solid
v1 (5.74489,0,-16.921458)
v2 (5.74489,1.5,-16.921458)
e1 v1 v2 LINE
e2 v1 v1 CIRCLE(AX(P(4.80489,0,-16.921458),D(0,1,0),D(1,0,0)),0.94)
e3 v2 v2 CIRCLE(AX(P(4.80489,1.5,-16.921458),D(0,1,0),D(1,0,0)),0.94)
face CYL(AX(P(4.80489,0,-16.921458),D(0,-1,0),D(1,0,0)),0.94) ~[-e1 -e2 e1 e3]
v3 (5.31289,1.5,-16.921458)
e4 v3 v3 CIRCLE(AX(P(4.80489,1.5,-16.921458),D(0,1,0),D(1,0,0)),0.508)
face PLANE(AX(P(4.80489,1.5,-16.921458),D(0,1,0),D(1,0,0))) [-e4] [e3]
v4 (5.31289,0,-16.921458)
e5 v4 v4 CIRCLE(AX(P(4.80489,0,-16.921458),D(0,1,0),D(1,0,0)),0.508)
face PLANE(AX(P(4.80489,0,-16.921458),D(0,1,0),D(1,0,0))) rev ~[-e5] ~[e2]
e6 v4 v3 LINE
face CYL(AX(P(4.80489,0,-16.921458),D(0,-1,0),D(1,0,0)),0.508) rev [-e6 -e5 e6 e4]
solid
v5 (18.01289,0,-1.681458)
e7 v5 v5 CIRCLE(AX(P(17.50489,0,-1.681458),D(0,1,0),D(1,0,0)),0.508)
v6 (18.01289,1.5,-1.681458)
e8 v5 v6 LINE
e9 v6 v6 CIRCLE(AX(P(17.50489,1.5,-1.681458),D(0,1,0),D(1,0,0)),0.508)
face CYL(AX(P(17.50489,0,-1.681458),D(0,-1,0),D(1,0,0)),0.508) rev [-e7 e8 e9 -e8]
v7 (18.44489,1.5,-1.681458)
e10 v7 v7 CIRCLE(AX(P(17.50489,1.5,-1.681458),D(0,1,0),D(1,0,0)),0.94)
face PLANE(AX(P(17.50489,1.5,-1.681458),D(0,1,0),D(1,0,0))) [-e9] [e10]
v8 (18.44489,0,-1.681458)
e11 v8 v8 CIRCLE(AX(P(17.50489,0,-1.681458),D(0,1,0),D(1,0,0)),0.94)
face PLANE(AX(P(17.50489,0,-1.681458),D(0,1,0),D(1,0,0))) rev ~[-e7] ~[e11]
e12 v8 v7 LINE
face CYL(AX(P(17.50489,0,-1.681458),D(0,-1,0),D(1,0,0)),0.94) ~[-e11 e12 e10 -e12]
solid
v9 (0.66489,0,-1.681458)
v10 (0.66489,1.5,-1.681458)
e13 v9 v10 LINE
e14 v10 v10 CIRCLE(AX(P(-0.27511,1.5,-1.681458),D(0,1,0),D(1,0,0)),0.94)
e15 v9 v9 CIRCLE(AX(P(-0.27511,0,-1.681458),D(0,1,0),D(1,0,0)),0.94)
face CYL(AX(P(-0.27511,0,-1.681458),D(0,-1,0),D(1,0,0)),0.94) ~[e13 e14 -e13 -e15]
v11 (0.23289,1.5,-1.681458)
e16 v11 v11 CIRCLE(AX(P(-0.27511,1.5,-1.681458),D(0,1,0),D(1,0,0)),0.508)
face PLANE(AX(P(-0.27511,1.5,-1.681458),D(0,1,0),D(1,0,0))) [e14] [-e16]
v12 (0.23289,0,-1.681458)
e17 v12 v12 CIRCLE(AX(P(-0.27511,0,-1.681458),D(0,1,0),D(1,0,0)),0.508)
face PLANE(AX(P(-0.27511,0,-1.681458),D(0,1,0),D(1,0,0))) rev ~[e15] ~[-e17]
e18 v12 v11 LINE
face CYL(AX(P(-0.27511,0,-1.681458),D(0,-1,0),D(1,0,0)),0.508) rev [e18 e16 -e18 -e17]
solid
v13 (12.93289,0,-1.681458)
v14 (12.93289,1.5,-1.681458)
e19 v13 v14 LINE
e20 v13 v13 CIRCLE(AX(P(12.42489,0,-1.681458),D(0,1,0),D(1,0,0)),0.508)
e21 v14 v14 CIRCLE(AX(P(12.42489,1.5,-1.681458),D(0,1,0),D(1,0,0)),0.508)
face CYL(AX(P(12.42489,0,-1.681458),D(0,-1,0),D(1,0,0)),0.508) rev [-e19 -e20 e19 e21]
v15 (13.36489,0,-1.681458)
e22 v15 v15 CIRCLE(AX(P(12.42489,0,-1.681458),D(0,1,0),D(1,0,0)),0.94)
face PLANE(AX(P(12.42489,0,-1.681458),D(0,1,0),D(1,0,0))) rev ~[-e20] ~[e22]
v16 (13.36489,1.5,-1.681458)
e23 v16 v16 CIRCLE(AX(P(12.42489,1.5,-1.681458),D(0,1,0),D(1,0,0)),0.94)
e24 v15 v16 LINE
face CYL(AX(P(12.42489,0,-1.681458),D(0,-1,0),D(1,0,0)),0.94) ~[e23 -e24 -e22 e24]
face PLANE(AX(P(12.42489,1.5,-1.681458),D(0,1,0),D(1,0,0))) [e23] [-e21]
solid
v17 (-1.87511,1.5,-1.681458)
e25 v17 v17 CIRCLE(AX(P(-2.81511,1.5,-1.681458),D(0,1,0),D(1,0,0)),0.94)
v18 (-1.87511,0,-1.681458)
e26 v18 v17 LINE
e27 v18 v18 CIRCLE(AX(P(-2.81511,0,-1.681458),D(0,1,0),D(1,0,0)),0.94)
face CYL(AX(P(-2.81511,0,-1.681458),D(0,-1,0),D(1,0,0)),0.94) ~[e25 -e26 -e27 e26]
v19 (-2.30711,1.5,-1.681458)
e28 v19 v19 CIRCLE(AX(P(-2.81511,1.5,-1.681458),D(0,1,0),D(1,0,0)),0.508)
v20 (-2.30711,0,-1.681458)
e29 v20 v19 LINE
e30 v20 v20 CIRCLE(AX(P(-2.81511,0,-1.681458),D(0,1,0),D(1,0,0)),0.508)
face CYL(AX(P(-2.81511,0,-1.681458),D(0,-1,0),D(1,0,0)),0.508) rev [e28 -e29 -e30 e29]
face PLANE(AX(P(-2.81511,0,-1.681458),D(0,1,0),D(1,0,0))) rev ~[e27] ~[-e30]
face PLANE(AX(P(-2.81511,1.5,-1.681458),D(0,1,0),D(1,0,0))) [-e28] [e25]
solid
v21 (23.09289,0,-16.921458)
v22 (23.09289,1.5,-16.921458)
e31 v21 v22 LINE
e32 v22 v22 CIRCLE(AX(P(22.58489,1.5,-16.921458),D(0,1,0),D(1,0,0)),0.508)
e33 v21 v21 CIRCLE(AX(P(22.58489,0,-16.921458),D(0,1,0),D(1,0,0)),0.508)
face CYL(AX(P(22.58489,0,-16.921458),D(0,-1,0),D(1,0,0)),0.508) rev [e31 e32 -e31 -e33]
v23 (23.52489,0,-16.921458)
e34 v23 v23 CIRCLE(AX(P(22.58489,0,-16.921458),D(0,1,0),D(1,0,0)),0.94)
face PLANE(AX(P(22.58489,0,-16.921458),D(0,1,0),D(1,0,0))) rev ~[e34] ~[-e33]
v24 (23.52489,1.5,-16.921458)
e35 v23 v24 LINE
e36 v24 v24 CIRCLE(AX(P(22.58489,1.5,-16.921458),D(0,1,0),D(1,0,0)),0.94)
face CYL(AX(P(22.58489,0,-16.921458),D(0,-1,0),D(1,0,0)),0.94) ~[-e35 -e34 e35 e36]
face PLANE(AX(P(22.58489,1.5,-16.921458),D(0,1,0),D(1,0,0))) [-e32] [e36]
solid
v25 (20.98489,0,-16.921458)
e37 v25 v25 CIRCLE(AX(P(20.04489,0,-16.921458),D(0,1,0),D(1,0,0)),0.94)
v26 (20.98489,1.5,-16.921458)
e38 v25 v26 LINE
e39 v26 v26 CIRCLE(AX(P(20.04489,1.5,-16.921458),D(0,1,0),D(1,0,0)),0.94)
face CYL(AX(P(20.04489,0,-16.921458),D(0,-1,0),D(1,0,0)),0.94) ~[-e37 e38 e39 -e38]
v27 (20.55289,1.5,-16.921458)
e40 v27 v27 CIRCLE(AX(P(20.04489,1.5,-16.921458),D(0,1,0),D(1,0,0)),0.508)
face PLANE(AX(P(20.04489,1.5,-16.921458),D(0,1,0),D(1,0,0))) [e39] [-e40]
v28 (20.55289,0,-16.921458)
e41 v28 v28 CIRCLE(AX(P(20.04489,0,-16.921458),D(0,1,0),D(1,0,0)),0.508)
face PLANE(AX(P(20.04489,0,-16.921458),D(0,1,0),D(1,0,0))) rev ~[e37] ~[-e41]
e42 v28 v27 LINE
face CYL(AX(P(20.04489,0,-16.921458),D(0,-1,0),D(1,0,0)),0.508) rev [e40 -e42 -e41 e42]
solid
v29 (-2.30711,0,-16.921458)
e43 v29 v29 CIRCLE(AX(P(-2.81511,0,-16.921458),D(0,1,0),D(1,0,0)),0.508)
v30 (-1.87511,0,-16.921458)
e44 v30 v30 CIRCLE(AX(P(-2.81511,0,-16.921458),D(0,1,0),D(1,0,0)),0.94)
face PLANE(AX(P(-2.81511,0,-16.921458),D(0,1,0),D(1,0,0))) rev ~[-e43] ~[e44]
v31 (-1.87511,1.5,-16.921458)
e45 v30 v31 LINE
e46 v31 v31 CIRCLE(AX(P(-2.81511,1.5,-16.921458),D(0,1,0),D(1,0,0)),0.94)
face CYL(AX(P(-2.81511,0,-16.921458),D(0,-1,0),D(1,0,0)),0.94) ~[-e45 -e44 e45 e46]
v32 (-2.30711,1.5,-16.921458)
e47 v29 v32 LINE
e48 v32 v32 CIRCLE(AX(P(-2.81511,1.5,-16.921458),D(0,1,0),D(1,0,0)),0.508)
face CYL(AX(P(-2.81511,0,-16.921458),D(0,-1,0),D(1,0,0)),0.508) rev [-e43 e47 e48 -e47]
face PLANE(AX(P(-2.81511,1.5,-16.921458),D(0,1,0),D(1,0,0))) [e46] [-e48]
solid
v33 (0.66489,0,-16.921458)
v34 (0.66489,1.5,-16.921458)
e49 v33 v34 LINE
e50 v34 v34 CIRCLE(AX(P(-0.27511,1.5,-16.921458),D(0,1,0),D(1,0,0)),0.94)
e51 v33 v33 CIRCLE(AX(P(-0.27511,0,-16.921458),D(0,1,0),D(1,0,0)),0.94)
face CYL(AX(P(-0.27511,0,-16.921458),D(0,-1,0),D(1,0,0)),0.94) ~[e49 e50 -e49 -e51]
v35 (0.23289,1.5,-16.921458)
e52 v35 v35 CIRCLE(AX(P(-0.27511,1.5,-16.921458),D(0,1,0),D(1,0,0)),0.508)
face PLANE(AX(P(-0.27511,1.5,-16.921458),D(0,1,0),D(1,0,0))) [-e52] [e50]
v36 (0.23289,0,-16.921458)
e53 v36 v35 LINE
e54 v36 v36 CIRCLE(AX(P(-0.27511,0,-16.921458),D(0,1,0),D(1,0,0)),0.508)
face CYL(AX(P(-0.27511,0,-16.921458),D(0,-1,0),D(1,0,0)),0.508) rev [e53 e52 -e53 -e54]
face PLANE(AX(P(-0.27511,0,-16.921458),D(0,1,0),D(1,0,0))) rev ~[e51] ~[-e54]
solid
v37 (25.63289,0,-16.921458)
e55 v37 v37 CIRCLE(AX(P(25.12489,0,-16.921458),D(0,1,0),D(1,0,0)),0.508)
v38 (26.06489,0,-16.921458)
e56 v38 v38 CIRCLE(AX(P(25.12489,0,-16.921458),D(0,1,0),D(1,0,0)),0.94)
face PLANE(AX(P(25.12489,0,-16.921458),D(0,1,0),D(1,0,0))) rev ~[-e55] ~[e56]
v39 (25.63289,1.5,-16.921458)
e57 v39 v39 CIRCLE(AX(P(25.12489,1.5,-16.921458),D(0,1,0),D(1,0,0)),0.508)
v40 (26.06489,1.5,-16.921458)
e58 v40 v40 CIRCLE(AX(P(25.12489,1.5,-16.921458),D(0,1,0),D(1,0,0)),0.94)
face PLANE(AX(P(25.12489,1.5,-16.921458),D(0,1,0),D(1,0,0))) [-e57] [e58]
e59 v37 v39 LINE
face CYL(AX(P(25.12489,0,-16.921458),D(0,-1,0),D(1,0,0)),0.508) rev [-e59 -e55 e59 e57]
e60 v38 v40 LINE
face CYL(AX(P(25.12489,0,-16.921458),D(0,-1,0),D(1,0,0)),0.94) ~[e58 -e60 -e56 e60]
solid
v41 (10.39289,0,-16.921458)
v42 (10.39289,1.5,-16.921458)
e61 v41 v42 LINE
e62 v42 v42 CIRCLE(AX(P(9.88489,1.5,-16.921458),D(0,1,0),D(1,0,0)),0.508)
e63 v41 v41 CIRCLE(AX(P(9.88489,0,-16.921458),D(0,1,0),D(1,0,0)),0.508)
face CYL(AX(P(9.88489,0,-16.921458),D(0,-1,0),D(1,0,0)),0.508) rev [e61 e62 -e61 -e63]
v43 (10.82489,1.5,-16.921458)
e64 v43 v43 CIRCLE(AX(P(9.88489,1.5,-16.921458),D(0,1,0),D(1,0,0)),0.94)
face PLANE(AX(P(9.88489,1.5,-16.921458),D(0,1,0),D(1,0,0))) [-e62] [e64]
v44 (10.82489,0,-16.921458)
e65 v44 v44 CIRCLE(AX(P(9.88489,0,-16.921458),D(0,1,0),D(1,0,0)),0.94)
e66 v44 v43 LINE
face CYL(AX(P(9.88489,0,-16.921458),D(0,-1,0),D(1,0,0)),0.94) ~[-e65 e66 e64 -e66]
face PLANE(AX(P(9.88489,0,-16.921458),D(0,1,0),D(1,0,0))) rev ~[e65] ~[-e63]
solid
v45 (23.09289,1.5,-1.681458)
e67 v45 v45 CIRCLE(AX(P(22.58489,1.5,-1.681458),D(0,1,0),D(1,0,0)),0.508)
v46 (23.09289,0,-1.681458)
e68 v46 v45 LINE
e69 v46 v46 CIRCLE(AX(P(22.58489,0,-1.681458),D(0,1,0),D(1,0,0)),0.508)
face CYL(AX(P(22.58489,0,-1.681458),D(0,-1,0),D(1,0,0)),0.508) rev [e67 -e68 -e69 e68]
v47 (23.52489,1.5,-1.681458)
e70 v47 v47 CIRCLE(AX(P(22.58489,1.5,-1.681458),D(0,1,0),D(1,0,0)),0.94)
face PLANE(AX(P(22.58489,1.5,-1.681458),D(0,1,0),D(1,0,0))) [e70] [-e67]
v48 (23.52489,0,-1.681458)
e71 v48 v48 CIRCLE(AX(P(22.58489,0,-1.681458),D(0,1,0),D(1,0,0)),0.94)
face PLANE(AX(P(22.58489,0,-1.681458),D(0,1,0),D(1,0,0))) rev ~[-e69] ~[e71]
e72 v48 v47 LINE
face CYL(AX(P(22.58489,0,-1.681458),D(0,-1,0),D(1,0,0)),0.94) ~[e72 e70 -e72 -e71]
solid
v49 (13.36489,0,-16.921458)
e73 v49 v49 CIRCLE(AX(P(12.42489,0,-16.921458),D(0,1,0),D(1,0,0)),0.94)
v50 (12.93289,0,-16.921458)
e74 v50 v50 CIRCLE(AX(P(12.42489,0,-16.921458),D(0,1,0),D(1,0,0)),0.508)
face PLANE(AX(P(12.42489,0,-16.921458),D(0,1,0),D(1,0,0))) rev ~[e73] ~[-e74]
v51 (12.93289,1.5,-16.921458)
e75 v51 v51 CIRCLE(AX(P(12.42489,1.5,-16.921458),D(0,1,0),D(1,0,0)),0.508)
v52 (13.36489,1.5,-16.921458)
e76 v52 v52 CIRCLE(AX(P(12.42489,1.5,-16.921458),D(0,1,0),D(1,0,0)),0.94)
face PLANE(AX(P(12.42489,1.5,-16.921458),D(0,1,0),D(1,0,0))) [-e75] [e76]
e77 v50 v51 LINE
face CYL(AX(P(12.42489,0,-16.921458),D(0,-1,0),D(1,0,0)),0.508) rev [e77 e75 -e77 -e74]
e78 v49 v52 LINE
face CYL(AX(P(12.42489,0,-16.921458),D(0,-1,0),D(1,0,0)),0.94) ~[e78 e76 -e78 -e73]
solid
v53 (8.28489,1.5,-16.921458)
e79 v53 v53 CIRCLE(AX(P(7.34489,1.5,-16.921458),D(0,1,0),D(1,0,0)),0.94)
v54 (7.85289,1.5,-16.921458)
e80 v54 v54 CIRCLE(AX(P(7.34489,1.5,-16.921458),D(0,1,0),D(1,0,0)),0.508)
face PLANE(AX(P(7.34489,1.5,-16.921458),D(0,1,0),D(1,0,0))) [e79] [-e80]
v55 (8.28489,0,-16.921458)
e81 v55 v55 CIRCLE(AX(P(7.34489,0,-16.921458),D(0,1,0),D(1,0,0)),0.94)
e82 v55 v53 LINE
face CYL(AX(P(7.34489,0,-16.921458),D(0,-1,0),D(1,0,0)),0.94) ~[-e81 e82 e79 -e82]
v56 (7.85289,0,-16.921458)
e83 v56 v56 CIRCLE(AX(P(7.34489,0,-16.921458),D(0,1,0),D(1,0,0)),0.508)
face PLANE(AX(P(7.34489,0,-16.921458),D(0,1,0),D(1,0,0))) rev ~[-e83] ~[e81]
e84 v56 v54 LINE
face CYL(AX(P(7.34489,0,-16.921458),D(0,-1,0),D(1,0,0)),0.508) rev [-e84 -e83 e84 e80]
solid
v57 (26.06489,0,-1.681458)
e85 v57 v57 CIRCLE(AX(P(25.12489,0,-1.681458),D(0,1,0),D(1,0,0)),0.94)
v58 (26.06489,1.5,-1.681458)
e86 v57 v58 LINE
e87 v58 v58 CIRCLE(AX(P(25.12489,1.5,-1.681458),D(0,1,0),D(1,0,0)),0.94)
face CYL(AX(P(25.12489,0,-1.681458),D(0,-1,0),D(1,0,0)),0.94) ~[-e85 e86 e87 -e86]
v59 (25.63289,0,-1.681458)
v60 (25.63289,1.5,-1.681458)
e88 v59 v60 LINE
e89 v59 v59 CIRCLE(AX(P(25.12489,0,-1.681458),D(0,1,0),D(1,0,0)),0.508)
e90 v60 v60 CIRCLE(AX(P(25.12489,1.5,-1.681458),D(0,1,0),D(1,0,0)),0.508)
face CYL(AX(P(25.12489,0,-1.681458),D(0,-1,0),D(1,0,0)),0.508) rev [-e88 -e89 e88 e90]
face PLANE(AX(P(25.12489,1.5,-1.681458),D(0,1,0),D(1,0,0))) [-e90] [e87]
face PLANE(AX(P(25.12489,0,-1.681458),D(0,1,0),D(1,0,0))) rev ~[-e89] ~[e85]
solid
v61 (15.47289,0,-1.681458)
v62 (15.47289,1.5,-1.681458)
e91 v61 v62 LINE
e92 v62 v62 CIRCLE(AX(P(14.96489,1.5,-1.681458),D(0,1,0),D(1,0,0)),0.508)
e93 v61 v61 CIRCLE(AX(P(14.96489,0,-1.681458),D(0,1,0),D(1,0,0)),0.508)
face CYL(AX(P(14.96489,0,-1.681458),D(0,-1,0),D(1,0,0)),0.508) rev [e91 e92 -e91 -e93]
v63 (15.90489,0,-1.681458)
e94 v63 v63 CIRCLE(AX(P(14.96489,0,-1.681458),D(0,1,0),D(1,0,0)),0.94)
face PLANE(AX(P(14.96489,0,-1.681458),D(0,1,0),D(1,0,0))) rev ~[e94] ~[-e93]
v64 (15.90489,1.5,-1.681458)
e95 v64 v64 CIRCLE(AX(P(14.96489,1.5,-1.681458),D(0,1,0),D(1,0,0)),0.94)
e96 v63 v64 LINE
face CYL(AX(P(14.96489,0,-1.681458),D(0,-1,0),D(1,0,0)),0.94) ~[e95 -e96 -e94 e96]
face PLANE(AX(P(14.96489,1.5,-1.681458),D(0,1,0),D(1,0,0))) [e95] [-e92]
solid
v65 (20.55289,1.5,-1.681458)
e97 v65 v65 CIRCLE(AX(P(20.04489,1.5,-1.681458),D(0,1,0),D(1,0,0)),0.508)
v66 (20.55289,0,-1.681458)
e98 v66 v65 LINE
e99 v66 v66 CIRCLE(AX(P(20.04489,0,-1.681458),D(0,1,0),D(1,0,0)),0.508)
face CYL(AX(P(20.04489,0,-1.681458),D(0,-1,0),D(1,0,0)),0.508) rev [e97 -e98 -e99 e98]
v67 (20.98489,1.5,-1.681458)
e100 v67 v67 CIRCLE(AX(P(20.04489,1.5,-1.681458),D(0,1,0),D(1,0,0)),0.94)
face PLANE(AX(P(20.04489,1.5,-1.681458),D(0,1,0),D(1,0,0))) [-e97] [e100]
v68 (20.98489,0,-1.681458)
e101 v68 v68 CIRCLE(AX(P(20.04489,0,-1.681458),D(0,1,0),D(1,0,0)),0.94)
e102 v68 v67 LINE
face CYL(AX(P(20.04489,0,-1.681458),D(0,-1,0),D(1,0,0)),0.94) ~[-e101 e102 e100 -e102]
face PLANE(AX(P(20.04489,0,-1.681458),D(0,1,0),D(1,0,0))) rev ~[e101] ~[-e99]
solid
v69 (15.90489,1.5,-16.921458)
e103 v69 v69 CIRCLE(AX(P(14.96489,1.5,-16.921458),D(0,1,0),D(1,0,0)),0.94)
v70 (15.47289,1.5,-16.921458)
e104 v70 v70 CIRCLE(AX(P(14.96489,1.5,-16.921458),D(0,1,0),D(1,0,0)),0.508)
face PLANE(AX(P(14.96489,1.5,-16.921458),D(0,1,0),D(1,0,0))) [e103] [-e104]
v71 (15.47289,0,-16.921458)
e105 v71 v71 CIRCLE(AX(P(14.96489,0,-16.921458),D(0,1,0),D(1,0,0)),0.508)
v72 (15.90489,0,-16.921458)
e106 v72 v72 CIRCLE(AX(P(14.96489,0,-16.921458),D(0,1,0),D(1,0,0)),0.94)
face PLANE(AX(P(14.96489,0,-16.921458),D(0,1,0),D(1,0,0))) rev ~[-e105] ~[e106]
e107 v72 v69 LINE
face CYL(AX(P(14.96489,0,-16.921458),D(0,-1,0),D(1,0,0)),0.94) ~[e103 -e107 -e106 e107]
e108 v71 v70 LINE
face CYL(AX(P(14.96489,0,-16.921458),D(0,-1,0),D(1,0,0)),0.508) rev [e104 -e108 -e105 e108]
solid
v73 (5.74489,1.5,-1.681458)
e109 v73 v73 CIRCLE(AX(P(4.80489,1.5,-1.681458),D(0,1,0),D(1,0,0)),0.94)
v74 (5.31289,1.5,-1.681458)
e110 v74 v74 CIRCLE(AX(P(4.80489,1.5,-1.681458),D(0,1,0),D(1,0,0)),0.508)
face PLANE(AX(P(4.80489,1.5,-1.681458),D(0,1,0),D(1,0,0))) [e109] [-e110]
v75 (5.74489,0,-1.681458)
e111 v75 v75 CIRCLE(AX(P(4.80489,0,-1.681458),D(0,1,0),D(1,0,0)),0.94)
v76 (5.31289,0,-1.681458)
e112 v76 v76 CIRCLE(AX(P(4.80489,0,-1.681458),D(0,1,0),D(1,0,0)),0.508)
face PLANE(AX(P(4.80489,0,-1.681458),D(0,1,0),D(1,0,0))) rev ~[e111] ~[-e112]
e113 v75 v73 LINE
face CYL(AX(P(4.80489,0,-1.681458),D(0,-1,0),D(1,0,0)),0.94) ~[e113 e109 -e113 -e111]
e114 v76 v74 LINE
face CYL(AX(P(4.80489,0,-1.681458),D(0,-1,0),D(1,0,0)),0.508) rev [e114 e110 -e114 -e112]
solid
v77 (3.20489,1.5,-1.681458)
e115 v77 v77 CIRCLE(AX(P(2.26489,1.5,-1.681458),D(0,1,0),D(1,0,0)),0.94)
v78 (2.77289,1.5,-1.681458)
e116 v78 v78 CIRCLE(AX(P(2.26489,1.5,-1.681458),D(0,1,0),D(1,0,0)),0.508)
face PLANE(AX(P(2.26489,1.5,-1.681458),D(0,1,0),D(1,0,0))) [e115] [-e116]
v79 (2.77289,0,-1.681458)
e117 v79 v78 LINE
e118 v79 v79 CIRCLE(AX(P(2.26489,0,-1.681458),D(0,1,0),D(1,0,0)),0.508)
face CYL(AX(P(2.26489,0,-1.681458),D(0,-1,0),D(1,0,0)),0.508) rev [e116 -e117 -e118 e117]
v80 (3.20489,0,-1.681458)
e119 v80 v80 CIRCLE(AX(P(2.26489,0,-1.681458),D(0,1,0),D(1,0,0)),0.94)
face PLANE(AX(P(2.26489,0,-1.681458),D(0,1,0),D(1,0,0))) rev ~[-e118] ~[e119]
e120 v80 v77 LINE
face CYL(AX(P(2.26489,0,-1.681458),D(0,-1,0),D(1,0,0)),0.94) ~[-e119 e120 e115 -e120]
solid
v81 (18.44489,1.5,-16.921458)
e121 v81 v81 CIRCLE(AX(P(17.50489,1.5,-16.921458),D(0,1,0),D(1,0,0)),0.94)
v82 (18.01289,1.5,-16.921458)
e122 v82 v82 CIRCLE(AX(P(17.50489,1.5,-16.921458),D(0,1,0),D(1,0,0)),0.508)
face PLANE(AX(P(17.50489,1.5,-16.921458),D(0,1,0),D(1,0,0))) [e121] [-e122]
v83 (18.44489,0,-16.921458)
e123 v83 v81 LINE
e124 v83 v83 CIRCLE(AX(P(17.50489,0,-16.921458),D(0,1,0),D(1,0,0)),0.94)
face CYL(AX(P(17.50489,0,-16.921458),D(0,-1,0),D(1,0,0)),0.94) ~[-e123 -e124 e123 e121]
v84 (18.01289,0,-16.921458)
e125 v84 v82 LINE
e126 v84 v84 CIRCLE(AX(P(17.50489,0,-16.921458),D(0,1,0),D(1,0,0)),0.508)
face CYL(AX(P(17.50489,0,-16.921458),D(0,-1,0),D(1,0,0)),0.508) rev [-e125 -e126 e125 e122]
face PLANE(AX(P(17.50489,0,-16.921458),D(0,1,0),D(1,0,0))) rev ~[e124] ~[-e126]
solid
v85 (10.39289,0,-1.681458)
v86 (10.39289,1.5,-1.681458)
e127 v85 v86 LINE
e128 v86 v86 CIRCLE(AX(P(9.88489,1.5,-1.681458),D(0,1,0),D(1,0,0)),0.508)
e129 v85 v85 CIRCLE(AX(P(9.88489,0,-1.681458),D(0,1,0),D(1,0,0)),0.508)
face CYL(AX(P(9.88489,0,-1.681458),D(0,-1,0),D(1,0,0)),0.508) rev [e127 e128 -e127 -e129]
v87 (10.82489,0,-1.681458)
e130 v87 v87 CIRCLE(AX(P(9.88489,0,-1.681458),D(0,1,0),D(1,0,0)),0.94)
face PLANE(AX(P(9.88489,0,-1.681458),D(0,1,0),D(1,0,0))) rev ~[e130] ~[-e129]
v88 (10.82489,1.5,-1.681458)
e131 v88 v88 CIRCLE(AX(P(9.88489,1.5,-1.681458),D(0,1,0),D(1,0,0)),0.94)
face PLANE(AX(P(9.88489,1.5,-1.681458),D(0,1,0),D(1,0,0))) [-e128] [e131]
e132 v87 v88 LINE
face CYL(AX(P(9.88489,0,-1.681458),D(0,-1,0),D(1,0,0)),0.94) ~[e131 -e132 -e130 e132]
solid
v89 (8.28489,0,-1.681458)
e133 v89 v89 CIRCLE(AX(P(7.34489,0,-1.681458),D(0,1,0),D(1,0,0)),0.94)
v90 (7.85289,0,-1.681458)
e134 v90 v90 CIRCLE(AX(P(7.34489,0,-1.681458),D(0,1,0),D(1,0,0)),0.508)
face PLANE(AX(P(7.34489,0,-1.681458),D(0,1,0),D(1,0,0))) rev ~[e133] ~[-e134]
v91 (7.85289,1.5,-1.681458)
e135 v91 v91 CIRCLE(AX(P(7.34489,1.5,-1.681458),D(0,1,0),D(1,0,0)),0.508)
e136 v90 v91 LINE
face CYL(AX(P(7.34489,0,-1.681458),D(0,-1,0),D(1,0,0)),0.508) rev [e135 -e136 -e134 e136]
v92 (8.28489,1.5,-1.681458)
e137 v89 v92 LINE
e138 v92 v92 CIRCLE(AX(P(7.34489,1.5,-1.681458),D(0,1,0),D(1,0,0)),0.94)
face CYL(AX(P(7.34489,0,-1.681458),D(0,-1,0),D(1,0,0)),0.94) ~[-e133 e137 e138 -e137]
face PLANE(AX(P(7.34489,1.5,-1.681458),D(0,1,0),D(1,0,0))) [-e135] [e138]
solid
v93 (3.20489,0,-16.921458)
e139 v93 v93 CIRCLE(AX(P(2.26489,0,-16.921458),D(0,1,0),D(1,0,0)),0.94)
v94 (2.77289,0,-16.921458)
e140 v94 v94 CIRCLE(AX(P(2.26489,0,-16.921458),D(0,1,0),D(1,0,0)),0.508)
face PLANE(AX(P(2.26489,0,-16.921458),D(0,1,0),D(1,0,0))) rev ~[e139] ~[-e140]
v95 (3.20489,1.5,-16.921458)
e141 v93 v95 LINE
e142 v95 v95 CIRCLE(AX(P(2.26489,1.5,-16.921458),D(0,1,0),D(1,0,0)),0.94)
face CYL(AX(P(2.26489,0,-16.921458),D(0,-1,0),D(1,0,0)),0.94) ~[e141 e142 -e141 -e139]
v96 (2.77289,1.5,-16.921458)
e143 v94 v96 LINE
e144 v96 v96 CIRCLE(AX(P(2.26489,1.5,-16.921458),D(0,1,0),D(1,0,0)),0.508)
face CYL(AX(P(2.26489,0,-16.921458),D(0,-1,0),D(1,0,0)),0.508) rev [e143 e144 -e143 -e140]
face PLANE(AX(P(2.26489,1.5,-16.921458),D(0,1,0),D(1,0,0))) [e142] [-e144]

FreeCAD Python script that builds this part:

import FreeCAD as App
import Part
import Sketcher

V = App.Vector
Q = App.Units.Quantity

doc = App.newDocument("Part")
body = doc.addObject("PartDesign::Body", "Body")

# Sketch on XZ plane
sketch1 = doc.addObject("Sketcher::SketchObject", "Sketch")
body.addObject(sketch1)
sketch1.AttachmentSupport = (doc.XZ_Plane, [""])
sketch1.MapMode = "FlatFace"
sketch1.addGeometry(Part.Circle(V(-2.8, -1.7, 0), V(0, 0, 1), 0.9), False)
sketch1.addGeometry(Part.Circle(V(-2.8, -1.7, 0), V(0, 0, 1), 0.5), False)
sketch1.addConstraint(Sketcher.Constraint("Coincident", 1, 3, 0, 3))
sketch1.addConstraint(Sketcher.Constraint("Diameter", 0, Q("1.88 mm")))
sketch1.addConstraint(Sketcher.Constraint("Diameter", 1, Q("1.016 mm")))
sketch1.addConstraint(Sketcher.Constraint("DistanceX", 0, 3, -1, 1, Q("2.81511 mm")))
sketch1.addConstraint(Sketcher.Constraint("DistanceY", 0, 3, -1, 1, Q("1.681458 mm")))
pad1 = doc.addObject("PartDesign::Pad", "Pad")
body.addObject(pad1)
pad1.Profile = sketch1
pad1.Length = 1.5
pad1.Reversed = True
body2 = doc.addObject("PartDesign::Body", "Body001")

# Sketch on XZ plane
sketch2 = doc.addObject("Sketcher::SketchObject", "Sketch001")
body2.addObject(sketch2)
sketch2.AttachmentSupport = (doc.getObject("XZ_Plane001"), [""])
sketch2.MapMode = "FlatFace"
sketch2.addGeometry(Part.Circle(V(-0.3, -1.7, 0), V(0, 0, 1), 0.9), False)
sketch2.addGeometry(Part.Circle(V(-0.3, -1.7, 0), V(0, 0, 1), 0.5), False)
sketch2.addConstraint(Sketcher.Constraint("Coincident", 1, 3, 0, 3))
sketch2.addConstraint(Sketcher.Constraint("Diameter", 0, Q("1.88 mm")))
sketch2.addConstraint(Sketcher.Constraint("Diameter", 1, Q("1.016 mm")))
sketch2.addConstraint(Sketcher.Constraint("DistanceX", 0, 3, -1, 1, Q("0.27511 mm")))
sketch2.addConstraint(Sketcher.Constraint("DistanceY", 0, 3, -1, 1, Q("1.681458 mm")))
pad2 = doc.addObject("PartDesign::Pad", "Pad001")
body2.addObject(pad2)
pad2.Profile = sketch2
pad2.Length = 1.5
pad2.Reversed = True
body3 = doc.addObject("PartDesign::Body", "Body002")

# Sketch on XZ plane
sketch3 = doc.addObject("Sketcher::SketchObject", "Sketch002")
body3.addObject(sketch3)
sketch3.AttachmentSupport = (doc.getObject("XZ_Plane002"), [""])
sketch3.MapMode = "FlatFace"
sketch3.addGeometry(Part.Circle(V(2.3, -1.7, 0), V(0, 0, 1), 0.9), False)
sketch3.addGeometry(Part.Circle(V(2.3, -1.7, 0), V(0, 0, 1), 0.5), False)
sketch3.addConstraint(Sketcher.Constraint("Coincident", 1, 3, 0, 3))
sketch3.addConstraint(Sketcher.Constraint("Diameter", 0, Q("1.88 mm")))
sketch3.addConstraint(Sketcher.Constraint("Diameter", 1, Q("1.016 mm")))
sketch3.addConstraint(Sketcher.Constraint("DistanceX", -1, 1, 0, 3, Q("2.26489 mm")))
sketch3.addConstraint(Sketcher.Constraint("DistanceY", 0, 3, -1, 1, Q("1.681458 mm")))
pad3 = doc.addObject("PartDesign::Pad", "Pad002")
body3.addObject(pad3)
pad3.Profile = sketch3
pad3.Length = 1.5
pad3.Reversed = True
body4 = doc.addObject("PartDesign::Body", "Body003")

# Sketch on XZ plane
sketch4 = doc.addObject("Sketcher::SketchObject", "Sketch003")
body4.addObject(sketch4)
sketch4.AttachmentSupport = (doc.getObject("XZ_Plane003"), [""])
sketch4.MapMode = "FlatFace"
sketch4.addGeometry(Part.Circle(V(4.8, -1.7, 0), V(0, 0, 1), 0.9), False)
sketch4.addGeometry(Part.Circle(V(4.8, -1.7, 0), V(0, 0, 1), 0.5), False)
sketch4.addConstraint(Sketcher.Constraint("Coincident", 1, 3, 0, 3))
sketch4.addConstraint(Sketcher.Constraint("Diameter", 0, Q("1.88 mm")))
sketch4.addConstraint(Sketcher.Constraint("Diameter", 1, Q("1.016 mm")))
sketch4.addConstraint(Sketcher.Constraint("DistanceX", -1, 1, 0, 3, Q("4.80489 mm")))
sketch4.addConstraint(Sketcher.Constraint("DistanceY", 0, 3, -1, 1, Q("1.681458 mm")))
pad4 = doc.addObject("PartDesign::Pad", "Pad003")
body4.addObject(pad4)
pad4.Profile = sketch4
pad4.Length = 1.5
pad4.Reversed = True
body5 = doc.addObject("PartDesign::Body", "Body004")

# Sketch on XZ plane
sketch5 = doc.addObject("Sketcher::SketchObject", "Sketch004")
body5.addObject(sketch5)
sketch5.AttachmentSupport = (doc.getObject("XZ_Plane004"), [""])
sketch5.MapMode = "FlatFace"
sketch5.addGeometry(Part.Circle(V(7.3, -1.7, 0), V(0, 0, 1), 0.9), False)
sketch5.addGeometry(Part.Circle(V(7.3, -1.7, 0), V(0, 0, 1), 0.5), False)
sketch5.addConstraint(Sketcher.Constraint("Coincident", 1, 3, 0, 3))
sketch5.addConstraint(Sketcher.Constraint("Diameter", 0, Q("1.88 mm")))
sketch5.addConstraint(Sketcher.Constraint("Diameter", 1, Q("1.016 mm")))
sketch5.addConstraint(Sketcher.Constraint("DistanceX", -1, 1, 0, 3, Q("7.34489 mm")))
sketch5.addConstraint(Sketcher.Constraint("DistanceY", 0, 3, -1, 1, Q("1.681458 mm")))
pad5 = doc.addObject("PartDesign::Pad", "Pad004")
body5.addObject(pad5)
pad5.Profile = sketch5
pad5.Length = 1.5
pad5.Reversed = True
body6 = doc.addObject("PartDesign::Body", "Body005")

# Sketch on XZ plane
sketch6 = doc.addObject("Sketcher::SketchObject", "Sketch005")
body6.addObject(sketch6)
sketch6.AttachmentSupport = (doc.getObject("XZ_Plane005"), [""])
sketch6.MapMode = "FlatFace"
sketch6.addGeometry(Part.Circle(V(9.9, -1.7, 0), V(0, 0, 1), 0.9), False)
sketch6.addGeometry(Part.Circle(V(9.9, -1.7, 0), V(0, 0, 1), 0.5), False)
sketch6.addConstraint(Sketcher.Constraint("Coincident", 1, 3, 0, 3))
sketch6.addConstraint(Sketcher.Constraint("Diameter", 0, Q("1.88 mm")))
sketch6.addConstraint(Sketcher.Constraint("Diameter", 1, Q("1.016 mm")))
sketch6.addConstraint(Sketcher.Constraint("DistanceX", -1, 1, 0, 3, Q("9.88489 mm")))
sketch6.addConstraint(Sketcher.Constraint("DistanceY", 0, 3, -1, 1, Q("1.681458 mm")))
pad6 = doc.addObject("PartDesign::Pad", "Pad005")
body6.addObject(pad6)
pad6.Profile = sketch6
pad6.Length = 1.5
pad6.Reversed = True
body7 = doc.addObject("PartDesign::Body", "Body006")

# Sketch on XZ plane
sketch7 = doc.addObject("Sketcher::SketchObject", "Sketch006")
body7.addObject(sketch7)
sketch7.AttachmentSupport = (doc.getObject("XZ_Plane006"), [""])
sketch7.MapMode = "FlatFace"
sketch7.addGeometry(Part.Circle(V(12.4, -1.7, 0), V(0, 0, 1), 0.9), False)
sketch7.addGeometry(Part.Circle(V(12.4, -1.7, 0), V(0, 0, 1), 0.5), False)
sketch7.addConstraint(Sketcher.Constraint("Coincident", 1, 3, 0, 3))
sketch7.addConstraint(Sketcher.Constraint("Diameter", 0, Q("1.88 mm")))
sketch7.addConstraint(Sketcher.Constraint("Diameter", 1, Q("1.016 mm")))
sketch7.addConstraint(Sketcher.Constraint("DistanceX", -1, 1, 0, 3, Q("12.42489 mm")))
sketch7.addConstraint(Sketcher.Constraint("DistanceY", 0, 3, -1, 1, Q("1.681458 mm")))
pad7 = doc.addObject("PartDesign::Pad", "Pad006")
body7.addObject(pad7)
pad7.Profile = sketch7
pad7.Length = 1.5
pad7.Reversed = True
body8 = doc.addObject("PartDesign::Body", "Body007")

# Sketch on XZ plane
sketch8 = doc.addObject("Sketcher::SketchObject", "Sketch007")
body8.addObject(sketch8)
sketch8.AttachmentSupport = (doc.getObject("XZ_Plane007"), [""])
sketch8.MapMode = "FlatFace"
sketch8.addGeometry(Part.Circle(V(15, -1.7, 0), V(0, 0, 1), 0.9), False)
sketch8.addGeometry(Part.Circle(V(15, -1.7, 0), V(0, 0, 1), 0.5), False)
sketch8.addConstraint(Sketcher.Constraint("Coincident", 1, 3, 0, 3))
sketch8.addConstraint(Sketcher.Constraint("Diameter", 0, Q("1.88 mm")))
sketch8.addConstraint(Sketcher.Constraint("Diameter", 1, Q("1.016 mm")))
sketch8.addConstraint(Sketcher.Constraint("DistanceX", -1, 1, 0, 3, Q("14.96489 mm")))
sketch8.addConstraint(Sketcher.Constraint("DistanceY", 0, 3, -1, 1, Q("1.681458 mm")))
pad8 = doc.addObject("PartDesign::Pad", "Pad007")
body8.addObject(pad8)
pad8.Profile = sketch8
pad8.Length = 1.5
pad8.Reversed = True
body9 = doc.addObject("PartDesign::Body", "Body008")

# Sketch on XZ plane
sketch9 = doc.addObject("Sketcher::SketchObject", "Sketch008")
body9.addObject(sketch9)
sketch9.AttachmentSupport = (doc.getObject("XZ_Plane008"), [""])
sketch9.MapMode = "FlatFace"
sketch9.addGeometry(Part.Circle(V(17.5, -1.7, 0), V(0, 0, 1), 0.9), False)
sketch9.addGeometry(Part.Circle(V(17.5, -1.7, 0), V(0, 0, 1), 0.5), False)
sketch9.addConstraint(Sketcher.Constraint("Coincident", 1, 3, 0, 3))
sketch9.addConstraint(Sketcher.Constraint("Diameter", 0, Q("1.88 mm")))
sketch9.addConstraint(Sketcher.Constraint("Diameter", 1, Q("1.016 mm")))
sketch9.addConstraint(Sketcher.Constraint("DistanceX", -1, 1, 0, 3, Q("17.50489 mm")))
sketch9.addConstraint(Sketcher.Constraint("DistanceY", 0, 3, -1, 1, Q("1.681458 mm")))
pad9 = doc.addObject("PartDesign::Pad", "Pad008")
body9.addObject(pad9)
pad9.Profile = sketch9
pad9.Length = 1.5
pad9.Reversed = True
body10 = doc.addObject("PartDesign::Body", "Body009")

# Sketch on XZ plane
sketch10 = doc.addObject("Sketcher::SketchObject", "Sketch009")
body10.addObject(sketch10)
sketch10.AttachmentSupport = (doc.getObject("XZ_Plane009"), [""])
sketch10.MapMode = "FlatFace"
sketch10.addGeometry(Part.Circle(V(20, -1.7, 0), V(0, 0, 1), 0.9), False)
sketch10.addGeometry(Part.Circle(V(20, -1.7, 0), V(0, 0, 1), 0.5), False)
sketch10.addConstraint(Sketcher.Constraint("Coincident", 1, 3, 0, 3))
sketch10.addConstraint(Sketcher.Constraint("Diameter", 0, Q("1.88 mm")))
sketch10.addConstraint(Sketcher.Constraint("Diameter", 1, Q("1.016 mm")))
sketch10.addConstraint(Sketcher.Constraint("DistanceX", -1, 1, 0, 3, Q("20.04489 mm")))
sketch10.addConstraint(Sketcher.Constraint("DistanceY", 0, 3, -1, 1, Q("1.681458 mm")))
pad10 = doc.addObject("PartDesign::Pad", "Pad009")
body10.addObject(pad10)
pad10.Profile = sketch10
pad10.Length = 1.5
pad10.Reversed = True
body11 = doc.addObject("PartDesign::Body", "Body010")

# Sketch on XZ plane
sketch11 = doc.addObject("Sketcher::SketchObject", "Sketch010")
body11.addObject(sketch11)
sketch11.AttachmentSupport = (doc.getObject("XZ_Plane010"), [""])
sketch11.MapMode = "FlatFace"
sketch11.addGeometry(Part.Circle(V(22.6, -1.7, 0), V(0, 0, 1), 0.9), False)
sketch11.addGeometry(Part.Circle(V(22.6, -1.7, 0), V(0, 0, 1), 0.5), False)
sketch11.addConstraint(Sketcher.Constraint("Coincident", 1, 3, 0, 3))
sketch11.addConstraint(Sketcher.Constraint("Diameter", 0, Q("1.88 mm")))
sketch11.addConstraint(Sketcher.Constraint("Diameter", 1, Q("1.016 mm")))
sketch11.addConstraint(Sketcher.Constraint("DistanceX", -1, 1, 0, 3, Q("22.58489 mm")))
sketch11.addConstraint(Sketcher.Constraint("DistanceY", 0, 3, -1, 1, Q("1.681458 mm")))
pad11 = doc.addObject("PartDesign::Pad", "Pad010")
body11.addObject(pad11)
pad11.Profile = sketch11
pad11.Length = 1.5
pad11.Reversed = True
body12 = doc.addObject("PartDesign::Body", "Body011")

# Sketch on XZ plane
sketch12 = doc.addObject("Sketcher::SketchObject", "Sketch011")
body12.addObject(sketch12)
sketch12.AttachmentSupport = (doc.getObject("XZ_Plane011"), [""])
sketch12.MapMode = "FlatFace"
sketch12.addGeometry(Part.Circle(V(25.1, -1.7, 0), V(0, 0, 1), 0.9), False)
sketch12.addGeometry(Part.Circle(V(25.1, -1.7, 0), V(0, 0, 1), 0.5), False)
sketch12.addConstraint(Sketcher.Constraint("Coincident", 1, 3, 0, 3))
sketch12.addConstraint(Sketcher.Constraint("Diameter", 0, Q("1.88 mm")))
sketch12.addConstraint(Sketcher.Constraint("Diameter", 1, Q("1.016 mm")))
sketch12.addConstraint(Sketcher.Constraint("DistanceX", -1, 1, 0, 3, Q("25.12489 mm")))
sketch12.addConstraint(Sketcher.Constraint("DistanceY", 0, 3, -1, 1, Q("1.681458 mm")))
pad12 = doc.addObject("PartDesign::Pad", "Pad011")
body12.addObject(pad12)
pad12.Profile = sketch12
pad12.Length = 1.5
pad12.Reversed = True
body13 = doc.addObject("PartDesign::Body", "Body012")

# Sketch on XZ plane
sketch13 = doc.addObject("Sketcher::SketchObject", "Sketch012")
body13.addObject(sketch13)
sketch13.AttachmentSupport = (doc.getObject("XZ_Plane012"), [""])
sketch13.MapMode = "FlatFace"
sketch13.addGeometry(Part.Circle(V(-0.3, -16.9, 0), V(0, 0, 1), 0.9), False)
sketch13.addGeometry(Part.Circle(V(-0.3, -16.9, 0), V(0, 0, 1), 0.5), False)
sketch13.addConstraint(Sketcher.Constraint("Coincident", 1, 3, 0, 3))
sketch13.addConstraint(Sketcher.Constraint("Diameter", 0, Q("1.88 mm")))
sketch13.addConstraint(Sketcher.Constraint("Diameter", 1, Q("1.016 mm")))
sketch13.addConstraint(Sketcher.Constraint("DistanceX", 0, 3, -1, 1, Q("0.27511 mm")))
sketch13.addConstraint(Sketcher.Constraint("DistanceY", 0, 3, -1, 1, Q("16.921458 mm")))
pad13 = doc.addObject("PartDesign::Pad", "Pad012")
body13.addObject(pad13)
pad13.Profile = sketch13
pad13.Length = 1.5
pad13.Reversed = True
body14 = doc.addObject("PartDesign::Body", "Body013")

# Sketch on XZ plane
sketch14 = doc.addObject("Sketcher::SketchObject", "Sketch013")
body14.addObject(sketch14)
sketch14.AttachmentSupport = (doc.getObject("XZ_Plane013"), [""])
sketch14.MapMode = "FlatFace"
sketch14.addGeometry(Part.Circle(V(2.3, -16.9, 0), V(0, 0, 1), 0.9), False)
sketch14.addGeometry(Part.Circle(V(2.3, -16.9, 0), V(0, 0, 1), 0.5), False)
sketch14.addConstraint(Sketcher.Constraint("Coincident", 1, 3, 0, 3))
sketch14.addConstraint(Sketcher.Constraint("Diameter", 0, Q("1.88 mm")))
sketch14.addConstraint(Sketcher.Constraint("Diameter", 1, Q("1.016 mm")))
sketch14.addConstraint(Sketcher.Constraint("DistanceX", -1, 1, 0, 3, Q("2.26489 mm")))
sketch14.addConstraint(Sketcher.Constraint("DistanceY", 0, 3, -1, 1, Q("16.921458 mm")))
pad14 = doc.addObject("PartDesign::Pad", "Pad013")
body14.addObject(pad14)
pad14.Profile = sketch14
pad14.Length = 1.5
pad14.Reversed = True
body15 = doc.addObject("PartDesign::Body", "Body014")

# Sketch on XZ plane
sketch15 = doc.addObject("Sketcher::SketchObject", "Sketch014")
body15.addObject(sketch15)
sketch15.AttachmentSupport = (doc.getObject("XZ_Plane014"), [""])
sketch15.MapMode = "FlatFace"
sketch15.addGeometry(Part.Circle(V(4.8, -16.9, 0), V(0, 0, 1), 0.9), False)
sketch15.addGeometry(Part.Circle(V(4.8, -16.9, 0), V(0, 0, 1), 0.5), False)
sketch15.addConstraint(Sketcher.Constraint("Coincident", 1, 3, 0, 3))
sketch15.addConstraint(Sketcher.Constraint("Diameter", 0, Q("1.88 mm")))
sketch15.addConstraint(Sketcher.Constraint("Diameter", 1, Q("1.016 mm")))
sketch15.addConstraint(Sketcher.Constraint("DistanceX", -1, 1, 0, 3, Q("4.80489 mm")))
sketch15.addConstraint(Sketcher.Constraint("DistanceY", 0, 3, -1, 1, Q("16.921458 mm")))
pad15 = doc.addObject("PartDesign::Pad", "Pad014")
body15.addObject(pad15)
pad15.Profile = sketch15
pad15.Length = 1.5
pad15.Reversed = True
body16 = doc.addObject("PartDesign::Body", "Body015")

# Sketch on XZ plane
sketch16 = doc.addObject("Sketcher::SketchObject", "Sketch015")
body16.addObject(sketch16)
sketch16.AttachmentSupport = (doc.getObject("XZ_Plane015"), [""])
sketch16.MapMode = "FlatFace"
sketch16.addGeometry(Part.Circle(V(7.3, -16.9, 0), V(0, 0, 1), 0.9), False)
sketch16.addGeometry(Part.Circle(V(7.3, -16.9, 0), V(0, 0, 1), 0.5), False)
sketch16.addConstraint(Sketcher.Constraint("Coincident", 1, 3, 0, 3))
sketch16.addConstraint(Sketcher.Constraint("Diameter", 0, Q("1.88 mm")))
sketch16.addConstraint(Sketcher.Constraint("Diameter", 1, Q("1.016 mm")))
sketch16.addConstraint(Sketcher.Constraint("DistanceX", -1, 1, 0, 3, Q("7.34489 mm")))
sketch16.addConstraint(Sketcher.Constraint("DistanceY", 0, 3, -1, 1, Q("16.921458 mm")))
pad16 = doc.addObject("PartDesign::Pad", "Pad015")
body16.addObject(pad16)
pad16.Profile = sketch16
pad16.Length = 1.5
pad16.Reversed = True
body17 = doc.addObject("PartDesign::Body", "Body016")

# Sketch on XZ plane
sketch17 = doc.addObject("Sketcher::SketchObject", "Sketch016")
body17.addObject(sketch17)
sketch17.AttachmentSupport = (doc.getObject("XZ_Plane016"), [""])
sketch17.MapMode = "FlatFace"
sketch17.addGeometry(Part.Circle(V(9.9, -16.9, 0), V(0, 0, 1), 0.9), False)
sketch17.addGeometry(Part.Circle(V(9.9, -16.9, 0), V(0, 0, 1), 0.5), False)
sketch17.addConstraint(Sketcher.Constraint("Coincident", 1, 3, 0, 3))
sketch17.addConstraint(Sketcher.Constraint("Diameter", 0, Q("1.88 mm")))
sketch17.addConstraint(Sketcher.Constraint("Diameter", 1, Q("1.016 mm")))
sketch17.addConstraint(Sketcher.Constraint("DistanceX", -1, 1, 0, 3, Q("9.88489 mm")))
sketch17.addConstraint(Sketcher.Constraint("DistanceY", 0, 3, -1, 1, Q("16.921458 mm")))
pad17 = doc.addObject("PartDesign::Pad", "Pad016")
body17.addObject(pad17)
pad17.Profile = sketch17
pad17.Length = 1.5
pad17.Reversed = True
body18 = doc.addObject("PartDesign::Body", "Body017")

# Sketch on XZ plane
sketch18 = doc.addObject("Sketcher::SketchObject", "Sketch017")
body18.addObject(sketch18)
sketch18.AttachmentSupport = (doc.getObject("XZ_Plane017"), [""])
sketch18.MapMode = "FlatFace"
sketch18.addGeometry(Part.Circle(V(12.4, -16.9, 0), V(0, 0, 1), 0.9), False)
sketch18.addGeometry(Part.Circle(V(12.4, -16.9, 0), V(0, 0, 1), 0.5), False)
sketch18.addConstraint(Sketcher.Constraint("Coincident", 1, 3, 0, 3))
sketch18.addConstraint(Sketcher.Constraint("Diameter", 0, Q("1.88 mm")))
sketch18.addConstraint(Sketcher.Constraint("Diameter", 1, Q("1.016 mm")))
sketch18.addConstraint(Sketcher.Constraint("DistanceX", -1, 1, 0, 3, Q("12.42489 mm")))
sketch18.addConstraint(Sketcher.Constraint("DistanceY", 0, 3, -1, 1, Q("16.921458 mm")))
pad18 = doc.addObject("PartDesign::Pad", "Pad017")
body18.addObject(pad18)
pad18.Profile = sketch18
pad18.Length = 1.5
pad18.Reversed = True
body19 = doc.addObject("PartDesign::Body", "Body018")

# Sketch on XZ plane
sketch19 = doc.addObject("Sketcher::SketchObject", "Sketch018")
body19.addObject(sketch19)
sketch19.AttachmentSupport = (doc.getObject("XZ_Plane018"), [""])
sketch19.MapMode = "FlatFace"
sketch19.addGeometry(Part.Circle(V(15, -16.9, 0), V(0, 0, 1), 0.9), False)
sketch19.addGeometry(Part.Circle(V(15, -16.9, 0), V(0, 0, 1), 0.5), False)
sketch19.addConstraint(Sketcher.Constraint("Coincident", 1, 3, 0, 3))
sketch19.addConstraint(Sketcher.Constraint("Diameter", 0, Q("1.88 mm")))
sketch19.addConstraint(Sketcher.Constraint("Diameter", 1, Q("1.016 mm")))
sketch19.addConstraint(Sketcher.Constraint("DistanceX", -1, 1, 0, 3, Q("14.96489 mm")))
sketch19.addConstraint(Sketcher.Constraint("DistanceY", 0, 3, -1, 1, Q("16.921458 mm")))
pad19 = doc.addObject("PartDesign::Pad", "Pad018")
body19.addObject(pad19)
pad19.Profile = sketch19
pad19.Length = 1.5
pad19.Reversed = True
body20 = doc.addObject("PartDesign::Body", "Body019")

# Sketch on XZ plane
sketch20 = doc.addObject("Sketcher::SketchObject", "Sketch019")
body20.addObject(sketch20)
sketch20.AttachmentSupport = (doc.getObject("XZ_Plane019"), [""])
sketch20.MapMode = "FlatFace"
sketch20.addGeometry(Part.Circle(V(17.5, -16.9, 0), V(0, 0, 1), 0.9), False)
sketch20.addGeometry(Part.Circle(V(17.5, -16.9, 0), V(0, 0, 1), 0.5), False)
sketch20.addConstraint(Sketcher.Constraint("Coincident", 1, 3, 0, 3))
sketch20.addConstraint(Sketcher.Constraint("Diameter", 0, Q("1.88 mm")))
sketch20.addConstraint(Sketcher.Constraint("Diameter", 1, Q("1.016 mm")))
sketch20.addConstraint(Sketcher.Constraint("DistanceX", -1, 1, 0, 3, Q("17.50489 mm")))
sketch20.addConstraint(Sketcher.Constraint("DistanceY", 0, 3, -1, 1, Q("16.921458 mm")))
pad20 = doc.addObject("PartDesign::Pad", "Pad019")
body20.addObject(pad20)
pad20.Profile = sketch20
pad20.Length = 1.5
pad20.Reversed = True
body21 = doc.addObject("PartDesign::Body", "Body020")

# Sketch on XZ plane
sketch21 = doc.addObject("Sketcher::SketchObject", "Sketch020")
body21.addObject(sketch21)
sketch21.AttachmentSupport = (doc.getObject("XZ_Plane020"), [""])
sketch21.MapMode = "FlatFace"
sketch21.addGeometry(Part.Circle(V(20, -16.9, 0), V(0, 0, 1), 0.9), False)
sketch21.addGeometry(Part.Circle(V(20, -16.9, 0), V(0, 0, 1), 0.5), False)
sketch21.addConstraint(Sketcher.Constraint("Coincident", 1, 3, 0, 3))
sketch21.addConstraint(Sketcher.Constraint("Diameter", 0, Q("1.88 mm")))
sketch21.addConstraint(Sketcher.Constraint("Diameter", 1, Q("1.016 mm")))
sketch21.addConstraint(Sketcher.Constraint("DistanceX", -1, 1, 0, 3, Q("20.04489 mm")))
sketch21.addConstraint(Sketcher.Constraint("DistanceY", 0, 3, -1, 1, Q("16.921458 mm")))
pad21 = doc.addObject("PartDesign::Pad", "Pad020")
body21.addObject(pad21)
pad21.Profile = sketch21
pad21.Length = 1.5
pad21.Reversed = True
body22 = doc.addObject("PartDesign::Body", "Body021")

# Sketch on XZ plane
sketch22 = doc.addObject("Sketcher::SketchObject", "Sketch021")
body22.addObject(sketch22)
sketch22.AttachmentSupport = (doc.getObject("XZ_Plane021"), [""])
sketch22.MapMode = "FlatFace"
sketch22.addGeometry(Part.Circle(V(22.6, -16.9, 0), V(0, 0, 1), 0.9), False)
sketch22.addGeometry(Part.Circle(V(22.6, -16.9, 0), V(0, 0, 1), 0.5), False)
sketch22.addConstraint(Sketcher.Constraint("Coincident", 1, 3, 0, 3))
sketch22.addConstraint(Sketcher.Constraint("Diameter", 0, Q("1.88 mm")))
sketch22.addConstraint(Sketcher.Constraint("Diameter", 1, Q("1.016 mm")))
sketch22.addConstraint(Sketcher.Constraint("DistanceX", -1, 1, 0, 3, Q("22.58489 mm")))
sketch22.addConstraint(Sketcher.Constraint("DistanceY", 0, 3, -1, 1, Q("16.921458 mm")))
pad22 = doc.addObject("PartDesign::Pad", "Pad021")
body22.addObject(pad22)
pad22.Profile = sketch22
pad22.Length = 1.5
pad22.Reversed = True
body23 = doc.addObject("PartDesign::Body", "Body022")

# Sketch on XZ plane
sketch23 = doc.addObject("Sketcher::SketchObject", "Sketch022")
body23.addObject(sketch23)
sketch23.AttachmentSupport = (doc.getObject("XZ_Plane022"), [""])
sketch23.MapMode = "FlatFace"
sketch23.addGeometry(Part.Circle(V(25.1, -16.9, 0), V(0, 0, 1), 0.9), False)
sketch23.addGeometry(Part.Circle(V(25.1, -16.9, 0), V(0, 0, 1), 0.5), False)
sketch23.addConstraint(Sketcher.Constraint("Coincident", 1, 3, 0, 3))
sketch23.addConstraint(Sketcher.Constraint("Diameter", 0, Q("1.88 mm")))
sketch23.addConstraint(Sketcher.Constraint("Diameter", 1, Q("1.016 mm")))
sketch23.addConstraint(Sketcher.Constraint("DistanceX", -1, 1, 0, 3, Q("25.12489 mm")))
sketch23.addConstraint(Sketcher.Constraint("DistanceY", 0, 3, -1, 1, Q("16.921458 mm")))
pad23 = doc.addObject("PartDesign::Pad", "Pad022")
body23.addObject(pad23)
pad23.Profile = sketch23
pad23.Length = 1.5
pad23.Reversed = True
body24 = doc.addObject("PartDesign::Body", "Body023")

# Sketch on XZ plane
sketch24 = doc.addObject("Sketcher::SketchObject", "Sketch023")
body24.addObject(sketch24)
sketch24.AttachmentSupport = (doc.getObject("XZ_Plane023"), [""])
sketch24.MapMode = "FlatFace"
sketch24.addGeometry(Part.Circle(V(-2.8, -16.9, 0), V(0, 0, 1), 0.9), False)
sketch24.addGeometry(Part.Circle(V(-2.8, -16.9, 0), V(0, 0, 1), 0.5), False)
sketch24.addConstraint(Sketcher.Constraint("Coincident", 1, 3, 0, 3))
sketch24.addConstraint(Sketcher.Constraint("Diameter", 0, Q("1.88 mm")))
sketch24.addConstraint(Sketcher.Constraint("Diameter", 1, Q("1.016 mm")))
sketch24.addConstraint(Sketcher.Constraint("DistanceX", 0, 3, -1, 1, Q("2.81511 mm")))
sketch24.addConstraint(Sketcher.Constraint("DistanceY", 0, 3, -1, 1, Q("16.921458 mm")))
pad24 = doc.addObject("PartDesign::Pad", "Pad023")
body24.addObject(pad24)
pad24.Profile = sketch24
pad24.Length = 1.5
pad24.Reversed = True

doc.recompute()
